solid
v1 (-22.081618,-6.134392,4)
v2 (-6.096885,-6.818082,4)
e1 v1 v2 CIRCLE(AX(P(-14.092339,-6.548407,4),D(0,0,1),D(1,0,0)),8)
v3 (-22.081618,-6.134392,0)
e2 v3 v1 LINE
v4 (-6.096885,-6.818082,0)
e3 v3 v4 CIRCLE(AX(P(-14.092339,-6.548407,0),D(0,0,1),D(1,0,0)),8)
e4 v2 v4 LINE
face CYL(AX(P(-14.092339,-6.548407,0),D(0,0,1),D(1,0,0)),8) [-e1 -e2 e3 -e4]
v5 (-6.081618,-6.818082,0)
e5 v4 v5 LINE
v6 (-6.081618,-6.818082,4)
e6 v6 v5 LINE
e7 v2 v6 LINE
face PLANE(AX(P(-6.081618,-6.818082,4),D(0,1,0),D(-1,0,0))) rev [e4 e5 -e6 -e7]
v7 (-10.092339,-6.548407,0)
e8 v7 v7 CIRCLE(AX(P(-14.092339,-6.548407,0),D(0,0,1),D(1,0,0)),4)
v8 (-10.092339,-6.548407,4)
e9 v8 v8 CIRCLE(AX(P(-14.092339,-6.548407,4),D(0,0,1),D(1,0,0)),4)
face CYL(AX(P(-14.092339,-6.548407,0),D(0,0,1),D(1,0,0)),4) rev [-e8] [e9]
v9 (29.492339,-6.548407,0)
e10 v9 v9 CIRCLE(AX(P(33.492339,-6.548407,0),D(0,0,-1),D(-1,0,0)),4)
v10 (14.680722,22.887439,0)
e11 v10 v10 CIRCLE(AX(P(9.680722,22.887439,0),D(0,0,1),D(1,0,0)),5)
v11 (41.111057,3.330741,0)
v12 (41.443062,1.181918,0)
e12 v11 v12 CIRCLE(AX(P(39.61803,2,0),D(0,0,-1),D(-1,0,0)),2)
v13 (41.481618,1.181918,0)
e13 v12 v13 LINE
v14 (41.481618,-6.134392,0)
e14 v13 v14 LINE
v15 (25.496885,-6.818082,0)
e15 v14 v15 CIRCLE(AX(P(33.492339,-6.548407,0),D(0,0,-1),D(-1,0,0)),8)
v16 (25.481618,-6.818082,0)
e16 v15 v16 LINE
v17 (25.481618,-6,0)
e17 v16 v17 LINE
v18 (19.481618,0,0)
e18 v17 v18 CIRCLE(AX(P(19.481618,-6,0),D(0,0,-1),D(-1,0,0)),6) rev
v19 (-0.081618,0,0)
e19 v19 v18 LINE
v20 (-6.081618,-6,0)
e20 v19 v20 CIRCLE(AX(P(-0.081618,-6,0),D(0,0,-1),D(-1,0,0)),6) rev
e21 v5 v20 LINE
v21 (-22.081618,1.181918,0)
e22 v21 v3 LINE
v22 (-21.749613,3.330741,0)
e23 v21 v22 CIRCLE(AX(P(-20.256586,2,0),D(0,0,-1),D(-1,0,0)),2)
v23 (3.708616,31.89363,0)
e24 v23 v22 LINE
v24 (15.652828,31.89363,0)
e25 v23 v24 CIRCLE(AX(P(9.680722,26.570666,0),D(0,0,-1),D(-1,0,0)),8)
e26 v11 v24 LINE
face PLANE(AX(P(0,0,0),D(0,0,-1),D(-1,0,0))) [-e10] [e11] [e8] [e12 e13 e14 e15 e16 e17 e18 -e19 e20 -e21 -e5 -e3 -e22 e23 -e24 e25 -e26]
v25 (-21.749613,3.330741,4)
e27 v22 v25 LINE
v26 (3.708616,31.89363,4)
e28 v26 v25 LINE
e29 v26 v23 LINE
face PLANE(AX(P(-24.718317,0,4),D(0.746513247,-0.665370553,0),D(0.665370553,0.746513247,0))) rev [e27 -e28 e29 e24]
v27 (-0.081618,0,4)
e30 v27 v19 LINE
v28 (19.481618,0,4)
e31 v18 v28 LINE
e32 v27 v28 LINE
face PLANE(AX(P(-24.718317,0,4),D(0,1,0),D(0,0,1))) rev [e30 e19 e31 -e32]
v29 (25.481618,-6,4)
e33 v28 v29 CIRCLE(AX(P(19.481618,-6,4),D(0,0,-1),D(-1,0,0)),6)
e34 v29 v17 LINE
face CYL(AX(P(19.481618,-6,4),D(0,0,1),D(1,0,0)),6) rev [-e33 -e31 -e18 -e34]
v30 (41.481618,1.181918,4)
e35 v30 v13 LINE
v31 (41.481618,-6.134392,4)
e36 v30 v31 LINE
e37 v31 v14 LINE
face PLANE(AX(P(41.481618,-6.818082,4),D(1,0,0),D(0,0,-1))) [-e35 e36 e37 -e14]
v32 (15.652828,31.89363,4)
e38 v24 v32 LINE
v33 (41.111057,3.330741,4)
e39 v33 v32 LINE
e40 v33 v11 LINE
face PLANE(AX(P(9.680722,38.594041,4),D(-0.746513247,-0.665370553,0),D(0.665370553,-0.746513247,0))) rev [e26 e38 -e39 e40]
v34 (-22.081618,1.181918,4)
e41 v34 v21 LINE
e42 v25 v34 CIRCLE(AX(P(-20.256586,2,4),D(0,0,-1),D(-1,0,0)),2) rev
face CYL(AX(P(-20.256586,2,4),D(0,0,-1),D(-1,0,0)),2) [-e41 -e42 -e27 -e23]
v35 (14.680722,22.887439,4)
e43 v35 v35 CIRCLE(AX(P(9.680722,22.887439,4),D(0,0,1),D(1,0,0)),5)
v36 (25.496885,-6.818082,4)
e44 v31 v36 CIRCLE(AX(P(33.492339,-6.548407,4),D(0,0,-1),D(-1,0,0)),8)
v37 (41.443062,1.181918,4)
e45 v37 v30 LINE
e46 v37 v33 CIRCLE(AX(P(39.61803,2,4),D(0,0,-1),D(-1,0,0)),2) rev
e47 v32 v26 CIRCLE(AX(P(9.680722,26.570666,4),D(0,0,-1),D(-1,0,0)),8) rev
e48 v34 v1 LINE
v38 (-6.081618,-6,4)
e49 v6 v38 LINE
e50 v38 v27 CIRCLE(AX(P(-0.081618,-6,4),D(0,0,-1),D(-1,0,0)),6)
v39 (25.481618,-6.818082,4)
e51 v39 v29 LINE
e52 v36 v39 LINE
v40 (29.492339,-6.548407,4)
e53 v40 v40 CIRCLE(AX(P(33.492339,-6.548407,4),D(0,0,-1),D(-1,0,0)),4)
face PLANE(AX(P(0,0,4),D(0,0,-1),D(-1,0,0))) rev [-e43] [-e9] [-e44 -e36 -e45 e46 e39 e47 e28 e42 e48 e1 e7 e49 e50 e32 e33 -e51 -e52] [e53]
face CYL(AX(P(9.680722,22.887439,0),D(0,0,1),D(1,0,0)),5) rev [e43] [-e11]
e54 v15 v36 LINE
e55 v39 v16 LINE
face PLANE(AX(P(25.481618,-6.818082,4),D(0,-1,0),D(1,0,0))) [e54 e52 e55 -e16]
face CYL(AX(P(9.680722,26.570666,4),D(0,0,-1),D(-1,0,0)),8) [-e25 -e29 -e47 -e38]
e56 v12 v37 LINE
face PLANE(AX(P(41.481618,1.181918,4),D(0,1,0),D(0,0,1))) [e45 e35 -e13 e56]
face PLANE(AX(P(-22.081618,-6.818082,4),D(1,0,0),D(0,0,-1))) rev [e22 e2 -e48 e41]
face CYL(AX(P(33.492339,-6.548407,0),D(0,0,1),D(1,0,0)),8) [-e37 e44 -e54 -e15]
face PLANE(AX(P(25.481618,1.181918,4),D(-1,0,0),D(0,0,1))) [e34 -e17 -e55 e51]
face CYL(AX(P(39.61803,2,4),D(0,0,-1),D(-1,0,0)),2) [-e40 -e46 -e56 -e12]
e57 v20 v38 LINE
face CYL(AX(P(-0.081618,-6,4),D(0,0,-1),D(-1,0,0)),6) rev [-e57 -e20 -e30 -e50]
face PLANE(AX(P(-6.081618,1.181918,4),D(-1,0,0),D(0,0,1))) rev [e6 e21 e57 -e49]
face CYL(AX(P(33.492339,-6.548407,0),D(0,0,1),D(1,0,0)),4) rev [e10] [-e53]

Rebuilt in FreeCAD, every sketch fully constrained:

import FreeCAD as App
import Part
import Sketcher

V = App.Vector
Q = App.Units.Quantity


def edges_at(feature, points):
    """Names of the edges that pass closest to the given points."""
    edges = feature.Shape.Edges
    near = lambda p: min(range(len(edges)), key=lambda i: edges[i].distToShape(Part.Vertex(*p))[0])
    return sorted({f"Edge{near(p) + 1}" for p in points})

doc = App.newDocument("Part")
body = doc.addObject("PartDesign::Body", "Body")

# Sketch on XY plane
sketch1 = body.newObject("Sketcher::SketchObject", "Sketch")
sketch1.AttachmentSupport = (doc.getObject("XY_Plane"), [""])
sketch1.MapMode = "FlatFace"
sketch1.addGeometry(Part.LineSegment(V(-25, 0, 0), V(44, 0, 0)), False)
sketch1.addGeometry(Part.LineSegment(V(44, 0, 0), V(10, 39, 0)), False)
sketch1.addGeometry(Part.LineSegment(V(10, 39, 0), V(-25, 0, 0)), False)
sketch1.addConstraint(Sketcher.Constraint("Coincident", 0, 2, 1, 1))
sketch1.addConstraint(Sketcher.Constraint("Coincident", 1, 2, 2, 1))
sketch1.addConstraint(Sketcher.Constraint("Coincident", 2, 2, 0, 1))
sketch1.addConstraint(Sketcher.Constraint("Horizontal", 0))
sketch1.addConstraint(Sketcher.Constraint("PointOnObject", 0, 2, -1))
sketch1.addConstraint(Sketcher.Constraint("Equal", 1, 2))
sketch1.addConstraint(Sketcher.Constraint("DistanceX", 0, 1, 0, 2, Q("68.798078 mm")))
sketch1.addConstraint(Sketcher.Constraint("Distance", 1, Q("51.699071 mm")))
sketch1.addConstraint(Sketcher.Constraint("DistanceX", -1, 1, 0, 2, Q("44.079761 mm")))
pad1 = body.newObject("PartDesign::Pad", "Pad")
pad1.Profile = sketch1
pad1.Length = 4
doc.recompute()

fillet = body.newObject("PartDesign::Fillet", "Fillet")
fillet.Base = (pad1, edges_at(pad1, [(9.681, 38.594, 2)]))
fillet.Radius = 8
doc.recompute()

fillet2 = body.newObject("PartDesign::Fillet", "Fillet001")
fillet2.Base = (fillet, edges_at(fillet, [(44.08, 0, 2), (-24.718, 0, 2)]))
fillet2.Radius = 2

# Sketch on XY plane
sketch2 = body.newObject("Sketcher::SketchObject", "Sketch001")
sketch2.AttachmentSupport = (doc.getObject("XY_Plane"), [""])
sketch2.MapMode = "FlatFace"
sketch2.AttachmentOffset = App.Placement(V(0, 0, 4), App.Rotation())
sketch2.addGeometry(Part.Circle(V(10, 23, 0), V(0, 0, 1), 5), False)
sketch2.addConstraint(Sketcher.Constraint("Diameter", 0, Q("10 mm")))
sketch2.addConstraint(Sketcher.Constraint("DistanceY", -1, 1, 0, 3, Q("22.887439 mm")))
sketch2.addConstraint(Sketcher.Constraint("DistanceX", -1, 1, 0, 3, Q("9.680722 mm")))
pocket1 = body.newObject("PartDesign::Pocket", "Pocket")
pocket1.Profile = sketch2
pocket1.Length = 4

# Sketch on XY plane
sketch3 = body.newObject("Sketcher::SketchObject", "Sketch002")
sketch3.AttachmentSupport = (doc.getObject("XY_Plane"), [""])
sketch3.MapMode = "FlatFace"
sketch3.addGeometry(Part.LineSegment(V(-22, 1, 0), V(-22, -7, 0)), False)
sketch3.addGeometry(Part.LineSegment(V(-22, -7, 0), V(-6, -7, 0)), False)
sketch3.addGeometry(Part.LineSegment(V(-6, -7, 0), V(-6, 1, 0)), False)
sketch3.addGeometry(Part.LineSegment(V(-6, 1, 0), V(-22, 1, 0)), False)
sketch3.addConstraint(Sketcher.Constraint("Coincident", 0, 2, 1, 1))
sketch3.addConstraint(Sketcher.Constraint("Coincident", 1, 2, 2, 1))
sketch3.addConstraint(Sketcher.Constraint("Coincident", 2, 2, 3, 1))
sketch3.addConstraint(Sketcher.Constraint("Coincident", 3, 2, 0, 1))
sketch3.addConstraint(Sketcher.Constraint("Vertical", 0))
sketch3.addConstraint(Sketcher.Constraint("Horizontal", 1))
sketch3.addConstraint(Sketcher.Constraint("Vertical", 2))
sketch3.addConstraint(Sketcher.Constraint("Horizontal", 3))
sketch3.addConstraint(Sketcher.Constraint("DistanceX", 1, 1, 1, 2, Q("16 mm")))
sketch3.addConstraint(Sketcher.Constraint("DistanceY", 0, 2, 0, 1, Q("8 mm")))
sketch3.addConstraint(Sketcher.Constraint("DistanceX", 0, 2, -1, 1, Q("22.081618 mm")))
sketch3.addConstraint(Sketcher.Constraint("DistanceY", 0, 2, -1, 1, Q("6.818082 mm")))
pad2 = body.newObject("PartDesign::Pad", "Pad001")
pad2.Profile = sketch3
pad2.Length = 4

# Sketch on XY plane
sketch4 = body.newObject("Sketcher::SketchObject", "Sketch003")
sketch4.AttachmentSupport = (doc.getObject("XY_Plane"), [""])
sketch4.MapMode = "FlatFace"
sketch4.AttachmentOffset = App.Placement(V(0, 0, 4), App.Rotation())
sketch4.addGeometry(Part.Circle(V(-14, -7, 0), V(0, 0, 1), 8), False)
sketch4.addConstraint(Sketcher.Constraint("Diameter", 0, Q("16 mm")))
sketch4.addConstraint(Sketcher.Constraint("DistanceX", 0, 3, -1, 1, Q("14.092339 mm")))
sketch4.addConstraint(Sketcher.Constraint("DistanceY", 0, 3, -1, 1, Q("6.548407 mm")))
pad3 = body.newObject("PartDesign::Pad", "Pad002")
pad3.Profile = sketch4
pad3.Length = 4
pad3.Reversed = True
doc.recompute()

fillet3 = body.newObject("PartDesign::Fillet", "Fillet002")
fillet3.Base = (pad3, edges_at(pad3, [(-6.082, 0, 2)]))
fillet3.Radius = 6

# Sketch on XY plane
sketch5 = body.newObject("Sketcher::SketchObject", "Sketch004")
sketch5.AttachmentSupport = (doc.getObject("XY_Plane"), [""])
sketch5.MapMode = "FlatFace"
sketch5.AttachmentOffset = App.Placement(V(0, 0, 4), App.Rotation())
sketch5.addGeometry(Part.Circle(V(-14.1, -6.5, 0), V(0, 0, 1), 4), False)
sketch5.addConstraint(Sketcher.Constraint("Diameter", 0, Q("8 mm")))
sketch5.addConstraint(Sketcher.Constraint("DistanceX", 0, 3, -1, 1, Q("14.092339 mm")))
sketch5.addConstraint(Sketcher.Constraint("DistanceY", 0, 3, -1, 1, Q("6.548407 mm")))
pocket2 = body.newObject("PartDesign::Pocket", "Pocket001")
pocket2.Profile = sketch5
pocket2.Length = 4
doc.recompute()

datumplane = body.newObject("PartDesign::Plane", "DatumPlane")
datumplane.AttachmentSupport = (doc.getObject("YZ_Plane"), [""])
datumplane.MapMode = "FlatFace"
datumplane.AttachmentOffset = App.Placement(V(0, 0, 9.7), App.Rotation())
mirrored = body.newObject("PartDesign::Mirrored", "Mirrored")
mirrored.Originals = [pad2, pad3, pocket2]
mirrored.MirrorPlane = (datumplane, [""])
body.Tip = mirrored
doc.recompute()

fillet4 = body.newObject("PartDesign::Fillet", "Fillet003")
fillet4.Base = (mirrored, edges_at(mirrored, [(25.482, 0, 2)]))
fillet4.Radius = 6

doc.recompute()
